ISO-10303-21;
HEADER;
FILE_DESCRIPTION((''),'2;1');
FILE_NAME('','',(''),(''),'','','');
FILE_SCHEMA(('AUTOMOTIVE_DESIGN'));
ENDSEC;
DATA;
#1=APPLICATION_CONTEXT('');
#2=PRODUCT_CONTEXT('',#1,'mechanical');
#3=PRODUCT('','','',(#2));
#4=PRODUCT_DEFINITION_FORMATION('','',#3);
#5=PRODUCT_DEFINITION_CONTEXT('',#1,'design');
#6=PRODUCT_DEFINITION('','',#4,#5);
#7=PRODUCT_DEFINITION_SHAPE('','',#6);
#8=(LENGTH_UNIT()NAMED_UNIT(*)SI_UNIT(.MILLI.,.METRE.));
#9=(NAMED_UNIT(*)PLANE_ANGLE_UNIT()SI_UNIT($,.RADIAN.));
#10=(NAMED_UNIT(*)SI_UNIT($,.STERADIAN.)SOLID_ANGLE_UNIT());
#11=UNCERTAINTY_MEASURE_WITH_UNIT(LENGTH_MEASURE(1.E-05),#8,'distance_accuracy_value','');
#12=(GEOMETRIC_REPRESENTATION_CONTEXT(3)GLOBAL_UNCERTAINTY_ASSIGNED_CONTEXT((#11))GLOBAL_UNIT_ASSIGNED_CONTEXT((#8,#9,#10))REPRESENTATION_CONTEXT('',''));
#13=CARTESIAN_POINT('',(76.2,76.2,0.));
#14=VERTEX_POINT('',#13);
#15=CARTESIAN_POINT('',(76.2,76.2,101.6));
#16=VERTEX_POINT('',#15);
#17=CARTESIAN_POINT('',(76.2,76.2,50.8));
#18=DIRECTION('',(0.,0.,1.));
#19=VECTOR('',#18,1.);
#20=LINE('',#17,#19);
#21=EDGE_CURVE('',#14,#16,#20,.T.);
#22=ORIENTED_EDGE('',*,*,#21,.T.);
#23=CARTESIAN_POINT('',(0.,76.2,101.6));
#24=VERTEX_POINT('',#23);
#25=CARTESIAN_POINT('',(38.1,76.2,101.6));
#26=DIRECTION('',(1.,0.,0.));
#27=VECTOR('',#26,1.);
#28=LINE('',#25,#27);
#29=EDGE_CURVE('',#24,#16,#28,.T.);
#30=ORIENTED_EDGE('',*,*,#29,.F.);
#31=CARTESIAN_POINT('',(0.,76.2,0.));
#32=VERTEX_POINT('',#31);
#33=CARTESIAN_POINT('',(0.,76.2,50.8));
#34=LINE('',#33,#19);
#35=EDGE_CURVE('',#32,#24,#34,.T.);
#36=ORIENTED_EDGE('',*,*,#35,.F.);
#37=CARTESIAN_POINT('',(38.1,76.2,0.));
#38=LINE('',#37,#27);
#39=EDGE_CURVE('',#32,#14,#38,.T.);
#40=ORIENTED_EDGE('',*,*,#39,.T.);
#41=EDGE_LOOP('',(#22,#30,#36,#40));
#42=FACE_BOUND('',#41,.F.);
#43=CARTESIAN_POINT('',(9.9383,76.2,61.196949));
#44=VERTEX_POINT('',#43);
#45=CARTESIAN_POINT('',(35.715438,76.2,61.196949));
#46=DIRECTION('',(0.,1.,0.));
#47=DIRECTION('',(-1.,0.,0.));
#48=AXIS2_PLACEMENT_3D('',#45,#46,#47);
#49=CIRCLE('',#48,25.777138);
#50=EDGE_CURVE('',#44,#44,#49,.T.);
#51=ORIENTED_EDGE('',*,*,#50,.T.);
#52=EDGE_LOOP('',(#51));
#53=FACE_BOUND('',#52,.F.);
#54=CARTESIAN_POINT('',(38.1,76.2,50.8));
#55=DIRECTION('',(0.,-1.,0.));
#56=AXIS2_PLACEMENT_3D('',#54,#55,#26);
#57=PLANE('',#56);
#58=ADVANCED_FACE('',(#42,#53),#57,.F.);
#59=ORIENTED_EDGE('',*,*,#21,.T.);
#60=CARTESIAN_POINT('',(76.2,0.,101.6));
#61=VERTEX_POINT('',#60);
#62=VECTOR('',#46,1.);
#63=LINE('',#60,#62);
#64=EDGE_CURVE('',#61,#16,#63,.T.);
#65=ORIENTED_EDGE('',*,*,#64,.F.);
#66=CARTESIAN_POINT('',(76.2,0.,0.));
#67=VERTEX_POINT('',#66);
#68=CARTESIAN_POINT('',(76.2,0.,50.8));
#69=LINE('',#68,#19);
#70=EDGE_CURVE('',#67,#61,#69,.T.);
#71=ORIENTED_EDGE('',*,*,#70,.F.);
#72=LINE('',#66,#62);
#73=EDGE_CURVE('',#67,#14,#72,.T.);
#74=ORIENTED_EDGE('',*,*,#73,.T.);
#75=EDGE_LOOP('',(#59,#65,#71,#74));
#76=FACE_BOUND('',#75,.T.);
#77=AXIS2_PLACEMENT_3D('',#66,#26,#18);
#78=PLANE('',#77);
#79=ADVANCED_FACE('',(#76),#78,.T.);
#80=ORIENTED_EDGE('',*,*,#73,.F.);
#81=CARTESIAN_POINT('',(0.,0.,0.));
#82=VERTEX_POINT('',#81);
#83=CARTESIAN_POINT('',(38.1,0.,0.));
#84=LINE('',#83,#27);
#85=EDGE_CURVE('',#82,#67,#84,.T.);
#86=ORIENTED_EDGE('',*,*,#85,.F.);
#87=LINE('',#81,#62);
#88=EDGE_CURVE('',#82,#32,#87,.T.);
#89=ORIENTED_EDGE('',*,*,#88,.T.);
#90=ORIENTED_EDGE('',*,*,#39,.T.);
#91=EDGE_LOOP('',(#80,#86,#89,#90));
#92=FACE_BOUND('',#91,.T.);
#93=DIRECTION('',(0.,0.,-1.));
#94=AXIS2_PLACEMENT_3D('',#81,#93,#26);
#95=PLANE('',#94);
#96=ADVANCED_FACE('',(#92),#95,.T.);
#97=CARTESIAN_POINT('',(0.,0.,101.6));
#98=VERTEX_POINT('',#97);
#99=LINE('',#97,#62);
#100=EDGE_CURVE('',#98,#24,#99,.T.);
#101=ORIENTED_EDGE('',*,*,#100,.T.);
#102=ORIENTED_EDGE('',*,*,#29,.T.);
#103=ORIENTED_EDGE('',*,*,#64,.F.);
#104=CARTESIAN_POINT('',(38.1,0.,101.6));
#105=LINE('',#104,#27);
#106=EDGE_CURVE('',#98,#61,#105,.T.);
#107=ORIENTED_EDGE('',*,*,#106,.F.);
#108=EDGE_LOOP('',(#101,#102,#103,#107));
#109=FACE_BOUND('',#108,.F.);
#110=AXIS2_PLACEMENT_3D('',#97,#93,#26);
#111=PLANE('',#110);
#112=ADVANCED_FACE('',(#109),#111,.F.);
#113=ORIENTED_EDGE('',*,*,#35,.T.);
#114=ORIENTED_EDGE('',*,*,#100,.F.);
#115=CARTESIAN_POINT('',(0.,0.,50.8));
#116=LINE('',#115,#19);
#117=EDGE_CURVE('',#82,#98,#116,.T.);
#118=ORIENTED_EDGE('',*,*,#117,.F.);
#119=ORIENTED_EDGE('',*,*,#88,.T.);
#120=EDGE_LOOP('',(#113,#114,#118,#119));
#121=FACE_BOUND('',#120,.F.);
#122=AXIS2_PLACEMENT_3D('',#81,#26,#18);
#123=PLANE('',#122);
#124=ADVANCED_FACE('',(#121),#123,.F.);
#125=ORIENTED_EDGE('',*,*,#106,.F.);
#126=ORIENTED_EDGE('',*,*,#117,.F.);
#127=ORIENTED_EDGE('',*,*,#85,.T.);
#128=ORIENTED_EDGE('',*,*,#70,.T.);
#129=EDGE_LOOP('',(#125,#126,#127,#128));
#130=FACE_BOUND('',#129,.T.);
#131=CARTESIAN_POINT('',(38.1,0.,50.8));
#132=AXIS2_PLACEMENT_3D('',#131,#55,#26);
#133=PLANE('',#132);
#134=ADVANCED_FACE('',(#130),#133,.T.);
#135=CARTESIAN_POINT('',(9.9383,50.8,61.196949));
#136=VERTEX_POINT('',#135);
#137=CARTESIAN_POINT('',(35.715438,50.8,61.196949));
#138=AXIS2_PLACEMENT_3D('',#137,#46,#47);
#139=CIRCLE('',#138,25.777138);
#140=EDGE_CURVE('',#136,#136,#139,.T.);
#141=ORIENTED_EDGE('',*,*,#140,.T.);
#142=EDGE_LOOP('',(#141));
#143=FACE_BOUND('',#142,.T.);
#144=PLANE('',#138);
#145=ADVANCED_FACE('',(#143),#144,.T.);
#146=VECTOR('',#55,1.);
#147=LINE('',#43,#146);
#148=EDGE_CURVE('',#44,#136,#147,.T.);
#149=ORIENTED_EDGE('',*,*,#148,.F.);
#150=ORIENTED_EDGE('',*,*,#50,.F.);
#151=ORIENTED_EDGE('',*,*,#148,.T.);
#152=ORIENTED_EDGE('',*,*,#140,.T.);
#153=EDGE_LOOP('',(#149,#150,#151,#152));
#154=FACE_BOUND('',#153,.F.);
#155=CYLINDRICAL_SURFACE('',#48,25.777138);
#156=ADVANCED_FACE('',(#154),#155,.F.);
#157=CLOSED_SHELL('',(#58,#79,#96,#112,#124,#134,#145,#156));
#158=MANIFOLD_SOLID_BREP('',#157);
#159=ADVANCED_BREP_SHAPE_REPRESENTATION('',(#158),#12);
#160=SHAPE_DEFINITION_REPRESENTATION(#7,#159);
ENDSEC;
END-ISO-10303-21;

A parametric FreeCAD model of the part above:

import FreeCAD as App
import Part
import Sketcher

V = App.Vector
Q = App.Units.Quantity


def add_polygon(sketch, points):
    """Adds a closed chain of lines whose ends are joined by coincident constraints."""
    first, n = sketch.GeometryCount, len(points)
    for a, b in zip(points, points[1:] + points[:1]):
        sketch.addGeometry(Part.LineSegment(App.Vector(*a, 0), App.Vector(*b, 0)), False)
    for i in range(n):
        sketch.addConstraint(Sketcher.Constraint("Coincident", first + i, 2, first + (i + 1) % n, 1))

doc = App.newDocument("Part")
params = doc.addObject("Spreadsheet::Sheet", "Params")
for row, (alias, value) in enumerate([
    ("sketch1_width", "3 in"),
    ("sketch1_height", "4 in"),
    ("pad1_length", "3 in"),
    ("pocket1_length", "1 in"),
], start=1):
    params.set(f"A{row}", alias)
    params.set(f"B{row}", "=" + value)
    params.setAlias(f"B{row}", alias)

body = doc.addObject("PartDesign::Body", "Body")

# Sketch on XZ plane
sketch1 = body.newObject("Sketcher::SketchObject", "Sketch")
sketch1.AttachmentSupport = (doc.getObject("XZ_Plane"), [""])
sketch1.MapMode = "FlatFace"
add_polygon(sketch1, [(0, 102), (0, 0), (76, 0), (76, 102)])  # lines 0-3
sketch1.addConstraint([
    Sketcher.Constraint("Vertical", 0),
    Sketcher.Constraint("Horizontal", 1),
    Sketcher.Constraint("Vertical", 2),
    Sketcher.Constraint("Horizontal", 3),
    Sketcher.Constraint("Coincident", 0, 2, -1, 1),
    Sketcher.Constraint("DistanceX", 1, 1, 1, 2, Q("3 in")),
    Sketcher.Constraint("DistanceY", 0, 2, 0, 1, Q("4 in")),
])
sketch1.setExpression("Constraints[9]", "Params.sketch1_width")
sketch1.setExpression("Constraints[10]", "Params.sketch1_height")
pad1 = body.newObject("PartDesign::Pad", "Pad")
pad1.Profile = sketch1
pad1.setExpression("Length", "Params.pad1_length")
pad1.Reversed = True

# Sketch on XZ plane
sketch2 = body.newObject("Sketcher::SketchObject", "Sketch001")
sketch2.AttachmentSupport = (doc.getObject("XZ_Plane"), [""])
sketch2.MapMode = "FlatFace"
sketch2.AttachmentOffset = App.Placement(V(0, 0, -3 * 25.4), App.Rotation())
sketch2.addGeometry(Part.Circle(V(36, 61, 0), V(0, 0, 1), 26), False)
sketch2.addConstraint([
    Sketcher.Constraint("Diameter", 0, Q("51.554276 mm")),
    Sketcher.Constraint("DistanceY", -1, 1, 0, 3, Q("61.196949 mm")),
    Sketcher.Constraint("DistanceX", -1, 1, 0, 3, Q("35.715438 mm")),
])
pocket1 = body.newObject("PartDesign::Pocket", "Pocket")
pocket1.Profile = sketch2
pocket1.setExpression("Length", "Params.pocket1_length")
pocket1.Reversed = True

doc.recompute()
